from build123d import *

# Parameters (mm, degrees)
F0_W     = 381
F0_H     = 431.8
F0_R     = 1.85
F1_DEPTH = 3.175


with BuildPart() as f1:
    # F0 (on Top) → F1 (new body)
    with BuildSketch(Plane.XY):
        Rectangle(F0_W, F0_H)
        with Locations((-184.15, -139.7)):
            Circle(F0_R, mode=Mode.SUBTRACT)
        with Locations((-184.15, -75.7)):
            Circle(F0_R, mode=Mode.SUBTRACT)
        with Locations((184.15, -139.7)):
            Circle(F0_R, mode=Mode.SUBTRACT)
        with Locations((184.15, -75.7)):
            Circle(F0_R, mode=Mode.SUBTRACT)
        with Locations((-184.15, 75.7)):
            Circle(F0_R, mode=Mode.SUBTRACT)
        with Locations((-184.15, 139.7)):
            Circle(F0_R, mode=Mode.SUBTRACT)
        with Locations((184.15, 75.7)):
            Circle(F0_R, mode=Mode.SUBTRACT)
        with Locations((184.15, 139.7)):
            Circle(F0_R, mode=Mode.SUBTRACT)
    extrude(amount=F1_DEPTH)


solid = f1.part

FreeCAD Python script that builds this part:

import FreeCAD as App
import Part
import Sketcher
Q = App.Units.Quantity


def add_polygon(sketch, points):
    """Adds a closed chain of lines whose ends are joined by coincident constraints."""
    first, n = sketch.GeometryCount, len(points)
    for a, b in zip(points, points[1:] + points[:1]):
        sketch.addGeometry(Part.LineSegment(App.Vector(*a, 0), App.Vector(*b, 0)), False)
    for i in range(n):
        sketch.addConstraint(Sketcher.Constraint("Coincident", first + i, 2, first + (i + 1) % n, 1))

doc = App.newDocument("Part")
body = doc.addObject("PartDesign::Body", "Body")

sketch1 = body.newObject("Sketcher::SketchObject", "Sketch")
sketch1.AttachmentSupport = (doc.getObject("XY_Plane"), [""])
sketch1.MapMode = "FlatFace"
add_polygon(sketch1, [(-190.5, 215.9), (-190.5, -215.9), (190.5, -215.9), (190.5, 215.9)])
sketch1.addGeometry(Part.Circle(App.Vector(-184.15, -139.7, 0), App.Vector(0, 0, 1), 1.85), False)
sketch1.addGeometry(Part.Circle(App.Vector(-184.15, -75.7, 0), App.Vector(0, 0, 1), 1.85), False)
sketch1.addGeometry(Part.Circle(App.Vector(184.15, -139.7, 0), App.Vector(0, 0, 1), 1.85), False)
sketch1.addGeometry(Part.Circle(App.Vector(184.15, -75.7, 0), App.Vector(0, 0, 1), 1.85), False)
sketch1.addGeometry(Part.Circle(App.Vector(-184.15, 75.7, 0), App.Vector(0, 0, 1), 1.85), False)
sketch1.addGeometry(Part.Circle(App.Vector(-184.15, 139.7, 0), App.Vector(0, 0, 1), 1.85), False)
sketch1.addGeometry(Part.Circle(App.Vector(184.15, 75.7, 0), App.Vector(0, 0, 1), 1.85), False)
sketch1.addGeometry(Part.Circle(App.Vector(184.15, 139.7, 0), App.Vector(0, 0, 1), 1.85), False)
sketch1.addConstraint([
    Sketcher.Constraint("Vertical", 0),
    Sketcher.Constraint("Horizontal", 1),
    Sketcher.Constraint("Vertical", 2),
    Sketcher.Constraint("Horizontal", 3),
    Sketcher.Constraint("Equal", 4, 5),
    Sketcher.Constraint("Equal", 5, 6),
    Sketcher.Constraint("Equal", 6, 7),
    Sketcher.Constraint("Equal", 7, 8),
    Sketcher.Constraint("Equal", 8, 9),
    Sketcher.Constraint("Equal", 9, 10),
    Sketcher.Constraint("Equal", 10, 11),
    Sketcher.Constraint("Symmetric", 7, 3, 8, 3, -1, 1),
    Sketcher.Constraint("Symmetric", 6, 3, 9, 3, -1, 1),
    Sketcher.Constraint("Symmetric", 5, 3, 10, 3, -1, 1),
    Sketcher.Constraint("Symmetric", 4, 3, 11, 3, -1, 1),
    Sketcher.Constraint("Symmetric", 0, 2, 2, 2, -1, 1),
    Sketcher.Constraint("Symmetric", 4, 3, 6, 3, -2),
    Sketcher.Constraint("Symmetric", 5, 3, 7, 3, -2),
    Sketcher.Constraint("Vertical", 4, 3, 5, 3),
    Sketcher.Constraint("DistanceX", 1, 1, 1, 2, Q("15 in")),
    Sketcher.Constraint("DistanceY", 0, 2, 0, 1, Q("17 in")),
    Sketcher.Constraint("DistanceY", 4, 3, 9, 3, Q("11 in")),
    Sketcher.Constraint("DistanceX", 4, 3, 6, 3, Q("14.5 in")),
    Sketcher.Constraint("Diameter", 4, 3.7),
    Sketcher.Constraint("DistanceY", 5, 3, -1, 1, 75.7),
])
pad1 = body.newObject("PartDesign::Pad", "Pad")
pad1.Profile = sketch1
pad1.Length = Q("0.125 in")

doc.recompute()
